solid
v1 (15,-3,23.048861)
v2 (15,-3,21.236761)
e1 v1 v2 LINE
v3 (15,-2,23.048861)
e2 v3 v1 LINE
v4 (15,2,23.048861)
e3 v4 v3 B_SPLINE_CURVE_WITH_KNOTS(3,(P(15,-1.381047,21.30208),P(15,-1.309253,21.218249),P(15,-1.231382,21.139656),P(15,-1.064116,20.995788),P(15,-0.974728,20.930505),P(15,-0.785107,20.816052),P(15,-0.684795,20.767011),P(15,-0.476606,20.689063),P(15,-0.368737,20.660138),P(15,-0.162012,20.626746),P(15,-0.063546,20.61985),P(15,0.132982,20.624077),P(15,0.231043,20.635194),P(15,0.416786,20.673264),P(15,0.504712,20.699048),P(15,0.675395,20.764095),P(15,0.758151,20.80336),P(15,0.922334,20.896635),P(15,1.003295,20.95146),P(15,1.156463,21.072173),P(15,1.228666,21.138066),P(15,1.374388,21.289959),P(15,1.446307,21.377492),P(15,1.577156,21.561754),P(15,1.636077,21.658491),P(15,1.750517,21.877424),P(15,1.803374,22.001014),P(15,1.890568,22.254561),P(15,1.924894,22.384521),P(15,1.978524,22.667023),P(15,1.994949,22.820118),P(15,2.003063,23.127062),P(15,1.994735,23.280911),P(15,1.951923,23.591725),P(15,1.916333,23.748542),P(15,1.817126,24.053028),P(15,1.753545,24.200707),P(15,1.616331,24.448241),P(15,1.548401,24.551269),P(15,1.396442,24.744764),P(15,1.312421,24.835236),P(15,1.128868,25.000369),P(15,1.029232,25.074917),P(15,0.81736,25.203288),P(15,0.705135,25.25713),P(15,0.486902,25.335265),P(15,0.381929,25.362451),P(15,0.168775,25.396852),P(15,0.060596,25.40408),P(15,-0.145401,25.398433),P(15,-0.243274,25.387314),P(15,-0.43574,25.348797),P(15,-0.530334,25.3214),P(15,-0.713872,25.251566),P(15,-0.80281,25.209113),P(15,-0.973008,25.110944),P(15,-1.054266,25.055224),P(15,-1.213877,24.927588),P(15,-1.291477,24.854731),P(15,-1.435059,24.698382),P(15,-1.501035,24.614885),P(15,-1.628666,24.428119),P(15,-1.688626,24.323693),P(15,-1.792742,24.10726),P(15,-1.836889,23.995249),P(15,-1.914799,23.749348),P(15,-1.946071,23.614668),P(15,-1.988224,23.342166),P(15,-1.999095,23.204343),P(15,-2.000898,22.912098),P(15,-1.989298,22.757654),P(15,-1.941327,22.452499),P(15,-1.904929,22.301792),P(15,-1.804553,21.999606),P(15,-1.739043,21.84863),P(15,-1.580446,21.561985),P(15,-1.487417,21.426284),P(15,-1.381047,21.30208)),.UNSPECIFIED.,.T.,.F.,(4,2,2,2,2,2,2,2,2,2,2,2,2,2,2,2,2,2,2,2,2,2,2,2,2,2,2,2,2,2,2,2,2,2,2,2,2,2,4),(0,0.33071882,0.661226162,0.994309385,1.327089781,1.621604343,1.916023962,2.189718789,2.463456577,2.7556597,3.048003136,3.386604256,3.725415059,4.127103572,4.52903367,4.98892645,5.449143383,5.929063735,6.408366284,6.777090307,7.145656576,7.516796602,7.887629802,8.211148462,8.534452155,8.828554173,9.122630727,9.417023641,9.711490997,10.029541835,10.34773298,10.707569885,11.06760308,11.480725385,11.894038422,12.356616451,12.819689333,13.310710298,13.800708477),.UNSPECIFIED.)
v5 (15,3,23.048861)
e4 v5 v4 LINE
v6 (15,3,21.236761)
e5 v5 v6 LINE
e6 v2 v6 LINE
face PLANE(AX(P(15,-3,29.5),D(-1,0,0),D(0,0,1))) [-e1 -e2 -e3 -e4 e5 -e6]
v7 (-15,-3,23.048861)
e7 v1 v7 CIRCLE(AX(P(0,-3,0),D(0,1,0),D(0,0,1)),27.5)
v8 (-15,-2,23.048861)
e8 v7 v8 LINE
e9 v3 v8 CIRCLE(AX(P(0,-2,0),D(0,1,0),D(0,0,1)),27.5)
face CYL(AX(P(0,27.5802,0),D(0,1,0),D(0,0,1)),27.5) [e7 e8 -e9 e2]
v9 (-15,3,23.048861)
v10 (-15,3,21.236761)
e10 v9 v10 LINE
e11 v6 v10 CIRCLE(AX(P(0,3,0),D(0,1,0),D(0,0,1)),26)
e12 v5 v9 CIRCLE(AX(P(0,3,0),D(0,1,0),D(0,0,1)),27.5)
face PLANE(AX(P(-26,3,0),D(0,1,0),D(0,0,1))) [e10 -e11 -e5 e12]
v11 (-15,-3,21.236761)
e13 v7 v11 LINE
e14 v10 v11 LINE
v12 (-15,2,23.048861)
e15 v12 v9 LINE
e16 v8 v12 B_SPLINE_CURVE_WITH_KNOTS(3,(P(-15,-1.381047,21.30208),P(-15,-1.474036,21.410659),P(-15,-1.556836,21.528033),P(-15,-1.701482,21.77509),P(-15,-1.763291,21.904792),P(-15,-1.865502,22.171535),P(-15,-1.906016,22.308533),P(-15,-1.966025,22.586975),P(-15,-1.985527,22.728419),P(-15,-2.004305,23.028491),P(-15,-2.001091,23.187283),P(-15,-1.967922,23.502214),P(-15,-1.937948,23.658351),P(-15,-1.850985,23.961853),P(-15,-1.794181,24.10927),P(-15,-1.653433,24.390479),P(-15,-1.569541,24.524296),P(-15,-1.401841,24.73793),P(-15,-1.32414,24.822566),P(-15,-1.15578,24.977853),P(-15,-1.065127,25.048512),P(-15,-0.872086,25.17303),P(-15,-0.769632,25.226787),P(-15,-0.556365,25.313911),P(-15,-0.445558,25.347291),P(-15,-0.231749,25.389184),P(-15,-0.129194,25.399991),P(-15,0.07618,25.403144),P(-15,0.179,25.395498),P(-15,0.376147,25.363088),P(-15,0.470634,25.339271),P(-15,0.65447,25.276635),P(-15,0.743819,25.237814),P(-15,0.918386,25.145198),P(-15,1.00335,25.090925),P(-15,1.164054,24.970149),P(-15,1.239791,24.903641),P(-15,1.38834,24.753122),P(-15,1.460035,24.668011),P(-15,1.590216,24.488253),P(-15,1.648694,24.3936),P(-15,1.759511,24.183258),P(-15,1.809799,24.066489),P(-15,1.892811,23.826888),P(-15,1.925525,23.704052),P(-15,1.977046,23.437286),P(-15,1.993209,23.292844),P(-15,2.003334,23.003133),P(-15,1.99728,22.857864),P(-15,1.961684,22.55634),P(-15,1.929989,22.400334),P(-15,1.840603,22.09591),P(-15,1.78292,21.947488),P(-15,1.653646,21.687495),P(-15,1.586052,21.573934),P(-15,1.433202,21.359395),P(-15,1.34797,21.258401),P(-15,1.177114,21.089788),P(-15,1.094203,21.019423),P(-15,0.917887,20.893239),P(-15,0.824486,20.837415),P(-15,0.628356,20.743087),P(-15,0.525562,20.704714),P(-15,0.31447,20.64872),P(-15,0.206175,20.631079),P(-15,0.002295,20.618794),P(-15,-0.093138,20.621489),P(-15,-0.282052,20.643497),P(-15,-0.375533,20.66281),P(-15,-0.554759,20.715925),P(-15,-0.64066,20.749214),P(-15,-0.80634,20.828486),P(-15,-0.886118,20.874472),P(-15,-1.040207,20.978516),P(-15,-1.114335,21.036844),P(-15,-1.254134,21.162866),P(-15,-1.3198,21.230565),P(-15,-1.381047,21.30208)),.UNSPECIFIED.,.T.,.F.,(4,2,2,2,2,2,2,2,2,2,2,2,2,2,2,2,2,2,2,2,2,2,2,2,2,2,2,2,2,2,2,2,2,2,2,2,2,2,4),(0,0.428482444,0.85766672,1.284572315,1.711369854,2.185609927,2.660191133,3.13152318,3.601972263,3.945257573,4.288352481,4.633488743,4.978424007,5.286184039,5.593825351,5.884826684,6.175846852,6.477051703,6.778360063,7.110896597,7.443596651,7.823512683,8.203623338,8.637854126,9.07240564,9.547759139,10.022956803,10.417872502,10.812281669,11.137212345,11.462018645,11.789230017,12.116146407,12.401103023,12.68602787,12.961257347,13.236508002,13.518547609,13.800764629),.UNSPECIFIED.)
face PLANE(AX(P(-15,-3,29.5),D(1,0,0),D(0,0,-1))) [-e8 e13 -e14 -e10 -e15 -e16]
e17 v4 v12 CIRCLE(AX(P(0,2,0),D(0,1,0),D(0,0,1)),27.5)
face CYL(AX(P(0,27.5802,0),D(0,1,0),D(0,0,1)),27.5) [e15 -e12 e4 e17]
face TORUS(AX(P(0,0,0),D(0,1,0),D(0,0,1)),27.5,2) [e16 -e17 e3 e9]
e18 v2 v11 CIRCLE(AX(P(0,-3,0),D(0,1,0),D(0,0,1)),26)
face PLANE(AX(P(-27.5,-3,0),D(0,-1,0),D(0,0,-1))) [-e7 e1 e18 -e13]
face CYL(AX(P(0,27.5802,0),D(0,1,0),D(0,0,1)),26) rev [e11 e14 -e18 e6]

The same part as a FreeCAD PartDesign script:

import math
import FreeCAD as App
import Part
import Sketcher
from FreeCAD import Vector

doc = App.newDocument("Part")
body = doc.addObject("PartDesign::Body", "Body")

# Sketch on XY plane
sketch1 = body.newObject("Sketcher::SketchObject", "Sketch")
sketch1.AttachmentSupport = (doc.getObject("XY_Plane"), [""])
sketch1.MapMode = "FlatFace"
sketch1.addGeometry([
    Part.LineSegment(Vector(-26, -3, 0), Vector(-26, 3, 0)),  # 0
    Part.LineSegment(Vector(-26, 3, 0), Vector(-27.5, 3, 0)),  # 1
    Part.LineSegment(Vector(-27.5, 3, 0), Vector(-27.5, 2, 0)),  # 2
    Part.ArcOfCircle(Part.Circle(Vector(-27.5, 0, 0), Vector(0, 0, 1), 2), math.radians(90), math.radians(270)),  # 3
    Part.LineSegment(Vector(-27.5, -2, 0), Vector(-27.5, -3, 0)),  # 4
    Part.LineSegment(Vector(-27.5, -3, 0), Vector(-26, -3, 0)),  # 5
], False)
sketch1.addConstraint([
    Sketcher.Constraint("Coincident", 0, 2, 1, 1),
    Sketcher.Constraint("Coincident", 1, 2, 2, 1),
    Sketcher.Constraint("Coincident", 2, 2, 3, 1),
    Sketcher.Constraint("Coincident", 3, 2, 4, 1),
    Sketcher.Constraint("Coincident", 4, 2, 5, 1),
    Sketcher.Constraint("Coincident", 5, 2, 0, 1),
    Sketcher.Constraint("Vertical", 0),
    Sketcher.Constraint("Horizontal", 1),
    Sketcher.Constraint("Vertical", 2),
    Sketcher.Constraint("Vertical", 4),
    Sketcher.Constraint("Horizontal", 5),
    Sketcher.Constraint("Symmetric", 2, 2, 3, 2, -1),
    Sketcher.Constraint("Vertical", 3, 3, 1, 2),
    Sketcher.Constraint("Equal", 2, 4),
    Sketcher.Constraint("Radius", 3, 2.0),
    Sketcher.Constraint("DistanceY", 0, 1, 0, 2, 6.0),
    Sketcher.Constraint("DistanceX", 1, 2, 1, 1, 1.5),
    Sketcher.Constraint("DistanceX", 0, 2, -1, 1, 26.0),
])
revolution = body.newObject("PartDesign::Revolution", "Revolution")
revolution.Profile = sketch1
revolution.ReferenceAxis = (sketch1, ["V_Axis"])
revolution.Angle = 360

# Sketch on XY plane
sketch2 = body.newObject("Sketcher::SketchObject", "Sketch001")
sketch2.AttachmentSupport = (doc.getObject("XY_Plane"), [""])
sketch2.MapMode = "FlatFace"
sketch2.addGeometry([
    Part.LineSegment(Vector(-15, 3, 0), Vector(-15, -3, 0)),
    Part.LineSegment(Vector(-15, -3, 0), Vector(15, -3, 0)),
    Part.LineSegment(Vector(15, -3, 0), Vector(15, 3, 0)),
    Part.LineSegment(Vector(15, 3, 0), Vector(-15, 3, 0)),
], False)
sketch2.addConstraint([
    Sketcher.Constraint("Coincident", 0, 2, 1, 1),
    Sketcher.Constraint("Coincident", 1, 2, 2, 1),
    Sketcher.Constraint("Coincident", 2, 2, 3, 1),
    Sketcher.Constraint("Coincident", 3, 2, 0, 1),
    Sketcher.Constraint("Vertical", 0),
    Sketcher.Constraint("Horizontal", 1),
    Sketcher.Constraint("Vertical", 2),
    Sketcher.Constraint("Horizontal", 3),
    Sketcher.Constraint("Symmetric", 0, 2, 2, 2, -1, 1),
    Sketcher.Constraint("DistanceX", 1, 1, 1, 2, 30.0),
    Sketcher.Constraint("DistanceY", 0, 2, 0, 1, 6.0),
])
pocket1 = body.newObject("PartDesign::Pocket", "Pocket")
pocket1.Profile = sketch2
pocket1.Type = "ThroughAll"
pocket1.Reversed = True

doc.recompute()
